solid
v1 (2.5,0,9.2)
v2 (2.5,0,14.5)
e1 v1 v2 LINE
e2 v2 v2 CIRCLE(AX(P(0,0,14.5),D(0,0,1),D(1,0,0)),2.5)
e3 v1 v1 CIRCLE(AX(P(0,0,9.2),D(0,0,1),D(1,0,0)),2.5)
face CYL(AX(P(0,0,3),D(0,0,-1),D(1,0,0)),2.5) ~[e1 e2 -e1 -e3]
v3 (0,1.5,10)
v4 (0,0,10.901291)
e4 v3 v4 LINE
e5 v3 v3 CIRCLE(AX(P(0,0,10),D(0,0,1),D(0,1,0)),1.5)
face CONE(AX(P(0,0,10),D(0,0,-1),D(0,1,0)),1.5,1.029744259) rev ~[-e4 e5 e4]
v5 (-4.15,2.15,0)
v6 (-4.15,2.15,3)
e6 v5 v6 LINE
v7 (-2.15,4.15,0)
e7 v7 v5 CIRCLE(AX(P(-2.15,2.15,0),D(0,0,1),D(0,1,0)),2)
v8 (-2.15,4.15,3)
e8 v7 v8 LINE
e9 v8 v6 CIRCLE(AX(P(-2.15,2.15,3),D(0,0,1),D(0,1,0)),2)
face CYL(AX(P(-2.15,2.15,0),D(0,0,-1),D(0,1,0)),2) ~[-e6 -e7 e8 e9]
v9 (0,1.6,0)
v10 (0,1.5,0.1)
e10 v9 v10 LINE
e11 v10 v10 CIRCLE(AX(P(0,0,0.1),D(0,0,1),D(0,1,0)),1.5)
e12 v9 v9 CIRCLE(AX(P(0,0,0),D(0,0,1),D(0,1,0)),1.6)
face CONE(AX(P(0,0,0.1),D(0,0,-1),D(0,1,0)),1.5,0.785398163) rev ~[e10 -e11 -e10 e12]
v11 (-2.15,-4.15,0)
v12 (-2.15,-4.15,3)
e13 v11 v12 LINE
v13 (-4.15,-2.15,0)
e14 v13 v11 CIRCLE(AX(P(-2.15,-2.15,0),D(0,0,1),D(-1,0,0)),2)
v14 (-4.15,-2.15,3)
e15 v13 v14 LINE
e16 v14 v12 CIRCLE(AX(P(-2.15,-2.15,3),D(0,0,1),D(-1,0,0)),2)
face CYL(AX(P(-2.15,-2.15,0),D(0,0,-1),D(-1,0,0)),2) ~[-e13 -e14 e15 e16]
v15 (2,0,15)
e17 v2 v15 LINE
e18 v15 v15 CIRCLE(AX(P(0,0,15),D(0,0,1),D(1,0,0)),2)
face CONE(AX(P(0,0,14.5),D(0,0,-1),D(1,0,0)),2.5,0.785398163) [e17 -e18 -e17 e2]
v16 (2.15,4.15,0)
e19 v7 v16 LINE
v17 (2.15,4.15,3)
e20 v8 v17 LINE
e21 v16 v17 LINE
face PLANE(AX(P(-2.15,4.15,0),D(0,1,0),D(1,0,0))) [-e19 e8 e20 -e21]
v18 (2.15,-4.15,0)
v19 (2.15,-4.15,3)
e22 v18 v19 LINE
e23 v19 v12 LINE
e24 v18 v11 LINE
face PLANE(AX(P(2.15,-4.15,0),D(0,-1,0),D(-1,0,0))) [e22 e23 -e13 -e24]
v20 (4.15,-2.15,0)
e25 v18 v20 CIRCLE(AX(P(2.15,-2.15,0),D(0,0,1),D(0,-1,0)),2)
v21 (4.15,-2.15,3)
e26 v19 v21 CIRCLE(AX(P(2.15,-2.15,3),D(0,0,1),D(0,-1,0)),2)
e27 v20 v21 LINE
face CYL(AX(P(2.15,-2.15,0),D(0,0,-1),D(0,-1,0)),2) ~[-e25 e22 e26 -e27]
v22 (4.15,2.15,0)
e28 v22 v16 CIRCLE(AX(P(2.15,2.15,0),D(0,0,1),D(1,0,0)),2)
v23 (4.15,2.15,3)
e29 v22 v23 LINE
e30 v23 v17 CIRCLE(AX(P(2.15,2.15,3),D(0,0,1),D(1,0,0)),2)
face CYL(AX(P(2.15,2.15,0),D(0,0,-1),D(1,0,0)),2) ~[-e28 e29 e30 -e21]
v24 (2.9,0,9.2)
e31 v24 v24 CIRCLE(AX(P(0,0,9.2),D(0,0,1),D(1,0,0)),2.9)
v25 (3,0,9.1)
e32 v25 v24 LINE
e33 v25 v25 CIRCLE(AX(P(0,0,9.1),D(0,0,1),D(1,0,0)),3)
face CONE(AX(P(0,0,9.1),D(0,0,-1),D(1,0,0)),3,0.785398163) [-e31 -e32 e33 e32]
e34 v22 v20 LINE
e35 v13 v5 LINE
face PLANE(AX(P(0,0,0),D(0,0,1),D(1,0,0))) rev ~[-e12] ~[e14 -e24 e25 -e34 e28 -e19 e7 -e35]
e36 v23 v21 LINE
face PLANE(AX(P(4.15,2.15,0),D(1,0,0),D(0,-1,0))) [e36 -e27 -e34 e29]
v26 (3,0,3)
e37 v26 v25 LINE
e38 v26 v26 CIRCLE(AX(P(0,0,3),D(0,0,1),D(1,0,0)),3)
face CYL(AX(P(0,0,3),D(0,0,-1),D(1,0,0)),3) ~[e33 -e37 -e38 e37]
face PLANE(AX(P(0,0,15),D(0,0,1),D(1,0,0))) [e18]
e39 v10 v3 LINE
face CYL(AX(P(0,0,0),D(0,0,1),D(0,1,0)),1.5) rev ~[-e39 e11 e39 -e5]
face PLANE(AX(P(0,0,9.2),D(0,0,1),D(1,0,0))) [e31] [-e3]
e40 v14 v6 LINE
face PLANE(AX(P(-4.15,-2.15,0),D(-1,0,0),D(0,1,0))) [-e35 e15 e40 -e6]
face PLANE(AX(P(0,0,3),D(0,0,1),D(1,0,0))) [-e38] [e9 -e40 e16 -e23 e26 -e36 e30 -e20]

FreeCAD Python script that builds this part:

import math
import FreeCAD as App
import Part
import Sketcher


def edges_at(feature, points):
    """Names of the edges that pass closest to the given points."""
    edges = feature.Shape.Edges
    near = lambda p: min(range(len(edges)), key=lambda i: edges[i].distToShape(Part.Vertex(*p))[0])
    return sorted({f"Edge{near(p) + 1}" for p in points})

doc = App.newDocument("Part")
params = doc.addObject("Spreadsheet::Sheet", "Params")
for row, (alias, value) in enumerate([
    ("sketch1_radius", "2 mm"),
    ("sketch1_width", "4.3 mm"),
    ("pad1_length", "3 mm"),
    ("sketch2_diameter", "5 mm"),
    ("pad2_length", "12 mm"),
    ("chamfer_size", "0.5 mm"),
    ("sketch3_diameter", "6 mm"),
    ("sketch3_diameter2", "5 mm"),
    ("pad3_length", "6.2 mm"),
    ("sketch4_diameter", "3 mm"),
    ("hole_diameter", "3 mm"),
    ("hole_depth", "10 mm"),
    ("chamfer2_size", "0.1 mm"),
], start=1):
    params.set(f"A{row}", alias)
    params.set(f"B{row}", "=" + value)
    params.setAlias(f"B{row}", alias)

body = doc.addObject("PartDesign::Body", "Body")

# Sketch on XY plane
sketch1 = body.newObject("Sketcher::SketchObject", "Sketch")
sketch1.AttachmentSupport = (doc.getObject("XY_Plane"), [""])
sketch1.MapMode = "FlatFace"
sketch1.addGeometry(Part.LineSegment(App.Vector(2.1, 4.2, 0), App.Vector(-2.1, 4.2, 0)), False)
sketch1.addGeometry(Part.ArcOfCircle(Part.Circle(App.Vector(-2.1, 2.1, 0), App.Vector(0, 0, 1), 2), math.radians(90), math.radians(180)), False)
sketch1.addGeometry(Part.LineSegment(App.Vector(-4.2, 2.1, 0), App.Vector(-4.2, -2.1, 0)), False)
sketch1.addGeometry(Part.ArcOfCircle(Part.Circle(App.Vector(-2.1, -2.1, 0), App.Vector(0, 0, 1), 2), math.radians(180), math.radians(270)), False)
sketch1.addGeometry(Part.LineSegment(App.Vector(-2.1, -4.2, 0), App.Vector(2.1, -4.2, 0)), False)
sketch1.addGeometry(Part.ArcOfCircle(Part.Circle(App.Vector(2.1, -2.1, 0), App.Vector(0, 0, 1), 2), math.radians(-90), math.radians(0)), False)
sketch1.addGeometry(Part.LineSegment(App.Vector(4.2, -2.1, 0), App.Vector(4.2, 2.1, 0)), False)
sketch1.addGeometry(Part.ArcOfCircle(Part.Circle(App.Vector(2.1, 2.1, 0), App.Vector(0, 0, 1), 2), math.radians(0), math.radians(90)), False)
sketch1.addConstraint(Sketcher.Constraint("Tangent", 0, 2, 1, 1))
sketch1.addConstraint(Sketcher.Constraint("Tangent", 1, 2, 2, 1))
sketch1.addConstraint(Sketcher.Constraint("Tangent", 2, 2, 3, 1))
sketch1.addConstraint(Sketcher.Constraint("Tangent", 3, 2, 4, 1))
sketch1.addConstraint(Sketcher.Constraint("Tangent", 4, 2, 5, 1))
sketch1.addConstraint(Sketcher.Constraint("Tangent", 5, 2, 6, 1))
sketch1.addConstraint(Sketcher.Constraint("Tangent", 6, 2, 7, 1))
sketch1.addConstraint(Sketcher.Constraint("Tangent", 7, 2, 0, 1))
sketch1.addConstraint(Sketcher.Constraint("Horizontal", 0))
sketch1.addConstraint(Sketcher.Constraint("Vertical", 2))
sketch1.addConstraint(Sketcher.Constraint("Horizontal", 4))
sketch1.addConstraint(Sketcher.Constraint("Vertical", 6))
sketch1.addConstraint(Sketcher.Constraint("Equal", 1, 3))
sketch1.addConstraint(Sketcher.Constraint("Equal", 3, 5))
sketch1.addConstraint(Sketcher.Constraint("Equal", 5, 7))
sketch1.addConstraint(Sketcher.Constraint("Symmetric", 1, 3, 5, 3, -1, 1))
sketch1.addConstraint(Sketcher.Constraint("Equal", 4, 2))
sketch1.addConstraint(Sketcher.Constraint("Radius", 1, 2.0))
sketch1.addConstraint(Sketcher.Constraint("DistanceX", 0, 2, 0, 1, 4.3))
sketch1.setExpression("Constraints[17]", "Params.sketch1_radius")
sketch1.setExpression("Constraints[18]", "Params.sketch1_width")
pad1 = body.newObject("PartDesign::Pad", "Pad")
pad1.Profile = sketch1
pad1.setExpression("Length", "Params.pad1_length")

# Sketch on XY plane
sketch2 = body.newObject("Sketcher::SketchObject", "Sketch001")
sketch2.AttachmentSupport = (doc.getObject("XY_Plane"), [""])
sketch2.MapMode = "FlatFace"
sketch2.AttachmentOffset = App.Placement(App.Vector(0, 0, 3), App.Rotation())
sketch2.addGeometry(Part.Circle(App.Vector(0, 0, 0), App.Vector(0, 0, 1), 2.5), False)
sketch2.addConstraint(Sketcher.Constraint("Coincident", 0, 3, -1, 1))
sketch2.addConstraint(Sketcher.Constraint("Diameter", 0, 5.0))
sketch2.setExpression("Constraints[1]", "Params.sketch2_diameter")
pad2 = body.newObject("PartDesign::Pad", "Pad001")
pad2.Profile = sketch2
pad2.setExpression("Length", "Params.pad2_length")
doc.recompute()

chamfer = body.newObject("PartDesign::Chamfer", "Chamfer")
chamfer.Base = (pad2, edges_at(pad2, [(-2.5, 0, 15)]))
chamfer.setExpression("Size", "Params.chamfer_size")

# Sketch on XY plane
sketch3 = body.newObject("Sketcher::SketchObject", "Sketch002")
sketch3.AttachmentSupport = (doc.getObject("XY_Plane"), [""])
sketch3.MapMode = "FlatFace"
sketch3.AttachmentOffset = App.Placement(App.Vector(0, 0, 3), App.Rotation())
sketch3.addGeometry(Part.Circle(App.Vector(0, 0, 0), App.Vector(0, 0, 1), 3), False)
sketch3.addGeometry(Part.Circle(App.Vector(0, 0, 0), App.Vector(0, 0, 1), 2.5), False)
sketch3.addConstraint(Sketcher.Constraint("Coincident", 0, 3, -1, 1))
sketch3.addConstraint(Sketcher.Constraint("Coincident", 1, 3, -1, 1))
sketch3.addConstraint(Sketcher.Constraint("Diameter", 0, 6.0))
sketch3.addConstraint(Sketcher.Constraint("Diameter", 1, 5.0))
sketch3.setExpression("Constraints[2]", "Params.sketch3_diameter")
sketch3.setExpression("Constraints[3]", "Params.sketch3_diameter2")
pad3 = body.newObject("PartDesign::Pad", "Pad002")
pad3.Profile = sketch3
pad3.setExpression("Length", "Params.pad3_length")

# Sketch on XY plane
sketch4 = body.newObject("Sketcher::SketchObject", "Sketch003")
sketch4.AttachmentSupport = (doc.getObject("XY_Plane"), [""])
sketch4.MapMode = "FlatFace"
sketch4.addGeometry(Part.Circle(App.Vector(0, 0, 0), App.Vector(0, 0, 1), 1.5), False)
sketch4.addConstraint(Sketcher.Constraint("Coincident", 0, 3, -1, 1))
sketch4.addConstraint(Sketcher.Constraint("Diameter", 0, 3.0))
sketch4.setExpression("Constraints[1]", "Params.sketch4_diameter")
doc.recompute()
hole = body.newObject("PartDesign::Hole", "Hole")
hole.Profile = sketch4
hole.ThreadType = "None"
hole.setExpression("Diameter", "Params.hole_diameter")
hole.DepthType = "Dimension"
hole.setExpression("Depth", "Params.hole_depth")
hole.DrillPoint = "Angled"
hole.DrillPointAngle = 118
hole.Reversed = True
doc.recompute()

chamfer2 = body.newObject("PartDesign::Chamfer", "Chamfer001")
chamfer2.Base = (hole, edges_at(hole, [(-3, 0, 9.2), (0, -1.5, 0)]))
chamfer2.setExpression("Size", "Params.chamfer2_size")

doc.recompute()
